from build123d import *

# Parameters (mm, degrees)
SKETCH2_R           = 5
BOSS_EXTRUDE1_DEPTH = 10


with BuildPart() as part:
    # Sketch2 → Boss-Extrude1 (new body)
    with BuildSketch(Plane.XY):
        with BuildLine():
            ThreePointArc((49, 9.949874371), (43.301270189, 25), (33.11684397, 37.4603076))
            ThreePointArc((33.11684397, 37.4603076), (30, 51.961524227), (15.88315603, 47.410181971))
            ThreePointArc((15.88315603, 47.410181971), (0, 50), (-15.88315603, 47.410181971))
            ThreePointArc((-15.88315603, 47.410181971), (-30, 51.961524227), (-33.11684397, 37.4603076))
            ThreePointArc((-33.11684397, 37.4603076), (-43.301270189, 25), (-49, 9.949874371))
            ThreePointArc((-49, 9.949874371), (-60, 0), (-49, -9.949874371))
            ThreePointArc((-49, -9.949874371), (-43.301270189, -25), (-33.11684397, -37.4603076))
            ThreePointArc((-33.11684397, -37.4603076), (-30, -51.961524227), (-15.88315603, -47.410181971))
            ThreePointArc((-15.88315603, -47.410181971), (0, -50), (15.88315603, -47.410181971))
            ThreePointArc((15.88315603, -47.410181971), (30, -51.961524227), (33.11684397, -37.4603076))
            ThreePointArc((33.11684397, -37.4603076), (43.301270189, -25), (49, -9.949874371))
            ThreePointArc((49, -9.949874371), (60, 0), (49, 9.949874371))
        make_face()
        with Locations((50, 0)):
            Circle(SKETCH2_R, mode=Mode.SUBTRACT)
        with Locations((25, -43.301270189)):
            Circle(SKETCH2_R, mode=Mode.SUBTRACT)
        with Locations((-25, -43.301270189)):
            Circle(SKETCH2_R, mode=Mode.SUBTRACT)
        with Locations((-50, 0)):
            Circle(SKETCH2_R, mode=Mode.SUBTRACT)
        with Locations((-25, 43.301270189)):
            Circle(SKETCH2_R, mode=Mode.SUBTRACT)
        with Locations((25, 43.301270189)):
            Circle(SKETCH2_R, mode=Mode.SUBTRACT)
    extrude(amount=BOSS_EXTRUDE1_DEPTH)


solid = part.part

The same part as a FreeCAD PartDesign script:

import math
import FreeCAD as App
import Part
import Sketcher
Q = App.Units.Quantity

doc = App.newDocument("Part")
body = doc.addObject("PartDesign::Body", "Body")

# Sketch on XY plane
sketch1 = body.newObject("Sketcher::SketchObject", "Sketch")
sketch1.AttachmentSupport = (doc.getObject("XY_Plane"), [""])
sketch1.MapMode = "FlatFace"
sketch1.addGeometry(Part.ArcOfCircle(Part.Circle(App.Vector(0, 0, 0), App.Vector(0, 0, 1), 50), math.radians(11.478341), math.radians(48.521659)), False)
sketch1.addGeometry(Part.ArcOfCircle(Part.Circle(App.Vector(25, 43.30127, 0), App.Vector(0, 0, 1), 10), math.radians(-35.73917), math.radians(155.73917)), False)
sketch1.addGeometry(Part.ArcOfCircle(Part.Circle(App.Vector(0, 0, 0), App.Vector(0, 0, 1), 50), math.radians(71.478341), math.radians(108.521659)), False)
sketch1.addGeometry(Part.ArcOfCircle(Part.Circle(App.Vector(-25, 43.30127, 0), App.Vector(0, 0, 1), 10), math.radians(24.26083), math.radians(215.73917)), False)
sketch1.addGeometry(Part.ArcOfCircle(Part.Circle(App.Vector(0, 0, 0), App.Vector(0, 0, 1), 50), math.radians(131.478341), math.radians(168.521659)), False)
sketch1.addGeometry(Part.ArcOfCircle(Part.Circle(App.Vector(-50, 0, 0), App.Vector(0, 0, 1), 10), math.radians(84.26083), math.radians(275.73917)), False)
sketch1.addGeometry(Part.ArcOfCircle(Part.Circle(App.Vector(0, 0, 0), App.Vector(0, 0, 1), 50), math.radians(-168.521659), math.radians(-131.478341)), False)
sketch1.addGeometry(Part.ArcOfCircle(Part.Circle(App.Vector(-25, -43.30127, 0), App.Vector(0, 0, 1), 10), math.radians(144.26083), math.radians(335.73917)), False)
sketch1.addGeometry(Part.ArcOfCircle(Part.Circle(App.Vector(0, 0, 0), App.Vector(0, 0, 1), 50), math.radians(-108.521659), math.radians(-71.478341)), False)
sketch1.addGeometry(Part.ArcOfCircle(Part.Circle(App.Vector(25, -43.30127, 0), App.Vector(0, 0, 1), 10), math.radians(-155.73917), math.radians(35.73917)), False)
sketch1.addGeometry(Part.ArcOfCircle(Part.Circle(App.Vector(0, 0, 0), App.Vector(0, 0, 1), 50), math.radians(-48.521659), math.radians(-11.478341)), False)
sketch1.addGeometry(Part.ArcOfCircle(Part.Circle(App.Vector(50, 0, 0), App.Vector(0, 0, 1), 10), math.radians(-95.73917), math.radians(95.73917)), False)
sketch1.addGeometry(Part.Circle(App.Vector(-25, -43.30127, 0), App.Vector(0, 0, 1), 5), False)
sketch1.addGeometry(Part.Circle(App.Vector(-50, 0, 0), App.Vector(0, 0, 1), 5), False)
sketch1.addGeometry(Part.Circle(App.Vector(25, -43.30127, 0), App.Vector(0, 0, 1), 5), False)
sketch1.addGeometry(Part.Circle(App.Vector(50, 0, 0), App.Vector(0, 0, 1), 5), False)
sketch1.addGeometry(Part.Circle(App.Vector(-25, 43.30127, 0), App.Vector(0, 0, 1), 5), False)
sketch1.addGeometry(Part.Circle(App.Vector(25, 43.30127, 0), App.Vector(0, 0, 1), 5), False)
sketch1.addConstraint(Sketcher.Constraint("Coincident", 0, 2, 1, 1))
sketch1.addConstraint(Sketcher.Constraint("Coincident", 1, 2, 2, 1))
sketch1.addConstraint(Sketcher.Constraint("Coincident", 2, 2, 3, 1))
sketch1.addConstraint(Sketcher.Constraint("Coincident", 3, 2, 4, 1))
sketch1.addConstraint(Sketcher.Constraint("Coincident", 4, 2, 5, 1))
sketch1.addConstraint(Sketcher.Constraint("Coincident", 5, 2, 6, 1))
sketch1.addConstraint(Sketcher.Constraint("Coincident", 6, 2, 7, 1))
sketch1.addConstraint(Sketcher.Constraint("Coincident", 7, 2, 8, 1))
sketch1.addConstraint(Sketcher.Constraint("Coincident", 8, 2, 9, 1))
sketch1.addConstraint(Sketcher.Constraint("Coincident", 9, 2, 10, 1))
sketch1.addConstraint(Sketcher.Constraint("Coincident", 10, 2, 11, 1))
sketch1.addConstraint(Sketcher.Constraint("Coincident", 11, 2, 0, 1))
sketch1.addConstraint(Sketcher.Constraint("Coincident", 0, 3, -1, 1))
sketch1.addConstraint(Sketcher.Constraint("Coincident", 2, 3, -1, 1))
sketch1.addConstraint(Sketcher.Constraint("Coincident", 4, 3, -1, 1))
sketch1.addConstraint(Sketcher.Constraint("Coincident", 6, 3, -1, 1))
sketch1.addConstraint(Sketcher.Constraint("Coincident", 8, 3, -1, 1))
sketch1.addConstraint(Sketcher.Constraint("Coincident", 10, 3, -1, 1))
sketch1.addConstraint(Sketcher.Constraint("Coincident", 12, 3, 7, 3))
sketch1.addConstraint(Sketcher.Constraint("Coincident", 13, 3, 5, 3))
sketch1.addConstraint(Sketcher.Constraint("Coincident", 14, 3, 9, 3))
sketch1.addConstraint(Sketcher.Constraint("Coincident", 15, 3, 11, 3))
sketch1.addConstraint(Sketcher.Constraint("Coincident", 16, 3, 3, 3))
sketch1.addConstraint(Sketcher.Constraint("Coincident", 17, 3, 1, 3))
sketch1.addConstraint(Sketcher.Constraint("Equal", 0, 2))
sketch1.addConstraint(Sketcher.Constraint("Equal", 1, 3))
sketch1.addConstraint(Sketcher.Constraint("Equal", 2, 4))
sketch1.addConstraint(Sketcher.Constraint("Equal", 3, 5))
sketch1.addConstraint(Sketcher.Constraint("Equal", 4, 6))
sketch1.addConstraint(Sketcher.Constraint("Equal", 5, 7))
sketch1.addConstraint(Sketcher.Constraint("Equal", 6, 8))
sketch1.addConstraint(Sketcher.Constraint("Equal", 7, 9))
sketch1.addConstraint(Sketcher.Constraint("Equal", 8, 10))
sketch1.addConstraint(Sketcher.Constraint("Equal", 9, 11))
sketch1.addConstraint(Sketcher.Constraint("Equal", 12, 13))
sketch1.addConstraint(Sketcher.Constraint("Equal", 13, 14))
sketch1.addConstraint(Sketcher.Constraint("Equal", 14, 15))
sketch1.addConstraint(Sketcher.Constraint("Equal", 15, 16))
sketch1.addConstraint(Sketcher.Constraint("Equal", 16, 17))
sketch1.addConstraint(Sketcher.Constraint("Symmetric", 1, 3, 7, 3, -1, 1))
sketch1.addConstraint(Sketcher.Constraint("Symmetric", 3, 3, 9, 3, -1, 1))
sketch1.addConstraint(Sketcher.Constraint("Symmetric", 5, 3, 11, 3, -1, 1))
sketch1.addConstraint(Sketcher.Constraint("Symmetric", 1, 3, 3, 3, -2))
sketch1.addConstraint(Sketcher.Constraint("PointOnObject", 5, 3, -1))
sketch1.addConstraint(Sketcher.Constraint("Diameter", 12, Q("10 mm")))
sketch1.addConstraint(Sketcher.Constraint("Radius", 0, Q("50 mm")))
sketch1.addConstraint(Sketcher.Constraint("Radius", 1, Q("10 mm")))
sketch1.addConstraint(Sketcher.Constraint("DistanceX", -1, 1, 1, 3, Q("25 mm")))
sketch1.addConstraint(Sketcher.Constraint("DistanceX", 5, 3, -1, 1, Q("50 mm")))
sketch1.addConstraint(Sketcher.Constraint("DistanceY", -1, 1, 1, 3, Q("43.30127 mm")))
pad1 = body.newObject("PartDesign::Pad", "Pad")
pad1.Profile = sketch1
pad1.Length = 10

doc.recompute()
